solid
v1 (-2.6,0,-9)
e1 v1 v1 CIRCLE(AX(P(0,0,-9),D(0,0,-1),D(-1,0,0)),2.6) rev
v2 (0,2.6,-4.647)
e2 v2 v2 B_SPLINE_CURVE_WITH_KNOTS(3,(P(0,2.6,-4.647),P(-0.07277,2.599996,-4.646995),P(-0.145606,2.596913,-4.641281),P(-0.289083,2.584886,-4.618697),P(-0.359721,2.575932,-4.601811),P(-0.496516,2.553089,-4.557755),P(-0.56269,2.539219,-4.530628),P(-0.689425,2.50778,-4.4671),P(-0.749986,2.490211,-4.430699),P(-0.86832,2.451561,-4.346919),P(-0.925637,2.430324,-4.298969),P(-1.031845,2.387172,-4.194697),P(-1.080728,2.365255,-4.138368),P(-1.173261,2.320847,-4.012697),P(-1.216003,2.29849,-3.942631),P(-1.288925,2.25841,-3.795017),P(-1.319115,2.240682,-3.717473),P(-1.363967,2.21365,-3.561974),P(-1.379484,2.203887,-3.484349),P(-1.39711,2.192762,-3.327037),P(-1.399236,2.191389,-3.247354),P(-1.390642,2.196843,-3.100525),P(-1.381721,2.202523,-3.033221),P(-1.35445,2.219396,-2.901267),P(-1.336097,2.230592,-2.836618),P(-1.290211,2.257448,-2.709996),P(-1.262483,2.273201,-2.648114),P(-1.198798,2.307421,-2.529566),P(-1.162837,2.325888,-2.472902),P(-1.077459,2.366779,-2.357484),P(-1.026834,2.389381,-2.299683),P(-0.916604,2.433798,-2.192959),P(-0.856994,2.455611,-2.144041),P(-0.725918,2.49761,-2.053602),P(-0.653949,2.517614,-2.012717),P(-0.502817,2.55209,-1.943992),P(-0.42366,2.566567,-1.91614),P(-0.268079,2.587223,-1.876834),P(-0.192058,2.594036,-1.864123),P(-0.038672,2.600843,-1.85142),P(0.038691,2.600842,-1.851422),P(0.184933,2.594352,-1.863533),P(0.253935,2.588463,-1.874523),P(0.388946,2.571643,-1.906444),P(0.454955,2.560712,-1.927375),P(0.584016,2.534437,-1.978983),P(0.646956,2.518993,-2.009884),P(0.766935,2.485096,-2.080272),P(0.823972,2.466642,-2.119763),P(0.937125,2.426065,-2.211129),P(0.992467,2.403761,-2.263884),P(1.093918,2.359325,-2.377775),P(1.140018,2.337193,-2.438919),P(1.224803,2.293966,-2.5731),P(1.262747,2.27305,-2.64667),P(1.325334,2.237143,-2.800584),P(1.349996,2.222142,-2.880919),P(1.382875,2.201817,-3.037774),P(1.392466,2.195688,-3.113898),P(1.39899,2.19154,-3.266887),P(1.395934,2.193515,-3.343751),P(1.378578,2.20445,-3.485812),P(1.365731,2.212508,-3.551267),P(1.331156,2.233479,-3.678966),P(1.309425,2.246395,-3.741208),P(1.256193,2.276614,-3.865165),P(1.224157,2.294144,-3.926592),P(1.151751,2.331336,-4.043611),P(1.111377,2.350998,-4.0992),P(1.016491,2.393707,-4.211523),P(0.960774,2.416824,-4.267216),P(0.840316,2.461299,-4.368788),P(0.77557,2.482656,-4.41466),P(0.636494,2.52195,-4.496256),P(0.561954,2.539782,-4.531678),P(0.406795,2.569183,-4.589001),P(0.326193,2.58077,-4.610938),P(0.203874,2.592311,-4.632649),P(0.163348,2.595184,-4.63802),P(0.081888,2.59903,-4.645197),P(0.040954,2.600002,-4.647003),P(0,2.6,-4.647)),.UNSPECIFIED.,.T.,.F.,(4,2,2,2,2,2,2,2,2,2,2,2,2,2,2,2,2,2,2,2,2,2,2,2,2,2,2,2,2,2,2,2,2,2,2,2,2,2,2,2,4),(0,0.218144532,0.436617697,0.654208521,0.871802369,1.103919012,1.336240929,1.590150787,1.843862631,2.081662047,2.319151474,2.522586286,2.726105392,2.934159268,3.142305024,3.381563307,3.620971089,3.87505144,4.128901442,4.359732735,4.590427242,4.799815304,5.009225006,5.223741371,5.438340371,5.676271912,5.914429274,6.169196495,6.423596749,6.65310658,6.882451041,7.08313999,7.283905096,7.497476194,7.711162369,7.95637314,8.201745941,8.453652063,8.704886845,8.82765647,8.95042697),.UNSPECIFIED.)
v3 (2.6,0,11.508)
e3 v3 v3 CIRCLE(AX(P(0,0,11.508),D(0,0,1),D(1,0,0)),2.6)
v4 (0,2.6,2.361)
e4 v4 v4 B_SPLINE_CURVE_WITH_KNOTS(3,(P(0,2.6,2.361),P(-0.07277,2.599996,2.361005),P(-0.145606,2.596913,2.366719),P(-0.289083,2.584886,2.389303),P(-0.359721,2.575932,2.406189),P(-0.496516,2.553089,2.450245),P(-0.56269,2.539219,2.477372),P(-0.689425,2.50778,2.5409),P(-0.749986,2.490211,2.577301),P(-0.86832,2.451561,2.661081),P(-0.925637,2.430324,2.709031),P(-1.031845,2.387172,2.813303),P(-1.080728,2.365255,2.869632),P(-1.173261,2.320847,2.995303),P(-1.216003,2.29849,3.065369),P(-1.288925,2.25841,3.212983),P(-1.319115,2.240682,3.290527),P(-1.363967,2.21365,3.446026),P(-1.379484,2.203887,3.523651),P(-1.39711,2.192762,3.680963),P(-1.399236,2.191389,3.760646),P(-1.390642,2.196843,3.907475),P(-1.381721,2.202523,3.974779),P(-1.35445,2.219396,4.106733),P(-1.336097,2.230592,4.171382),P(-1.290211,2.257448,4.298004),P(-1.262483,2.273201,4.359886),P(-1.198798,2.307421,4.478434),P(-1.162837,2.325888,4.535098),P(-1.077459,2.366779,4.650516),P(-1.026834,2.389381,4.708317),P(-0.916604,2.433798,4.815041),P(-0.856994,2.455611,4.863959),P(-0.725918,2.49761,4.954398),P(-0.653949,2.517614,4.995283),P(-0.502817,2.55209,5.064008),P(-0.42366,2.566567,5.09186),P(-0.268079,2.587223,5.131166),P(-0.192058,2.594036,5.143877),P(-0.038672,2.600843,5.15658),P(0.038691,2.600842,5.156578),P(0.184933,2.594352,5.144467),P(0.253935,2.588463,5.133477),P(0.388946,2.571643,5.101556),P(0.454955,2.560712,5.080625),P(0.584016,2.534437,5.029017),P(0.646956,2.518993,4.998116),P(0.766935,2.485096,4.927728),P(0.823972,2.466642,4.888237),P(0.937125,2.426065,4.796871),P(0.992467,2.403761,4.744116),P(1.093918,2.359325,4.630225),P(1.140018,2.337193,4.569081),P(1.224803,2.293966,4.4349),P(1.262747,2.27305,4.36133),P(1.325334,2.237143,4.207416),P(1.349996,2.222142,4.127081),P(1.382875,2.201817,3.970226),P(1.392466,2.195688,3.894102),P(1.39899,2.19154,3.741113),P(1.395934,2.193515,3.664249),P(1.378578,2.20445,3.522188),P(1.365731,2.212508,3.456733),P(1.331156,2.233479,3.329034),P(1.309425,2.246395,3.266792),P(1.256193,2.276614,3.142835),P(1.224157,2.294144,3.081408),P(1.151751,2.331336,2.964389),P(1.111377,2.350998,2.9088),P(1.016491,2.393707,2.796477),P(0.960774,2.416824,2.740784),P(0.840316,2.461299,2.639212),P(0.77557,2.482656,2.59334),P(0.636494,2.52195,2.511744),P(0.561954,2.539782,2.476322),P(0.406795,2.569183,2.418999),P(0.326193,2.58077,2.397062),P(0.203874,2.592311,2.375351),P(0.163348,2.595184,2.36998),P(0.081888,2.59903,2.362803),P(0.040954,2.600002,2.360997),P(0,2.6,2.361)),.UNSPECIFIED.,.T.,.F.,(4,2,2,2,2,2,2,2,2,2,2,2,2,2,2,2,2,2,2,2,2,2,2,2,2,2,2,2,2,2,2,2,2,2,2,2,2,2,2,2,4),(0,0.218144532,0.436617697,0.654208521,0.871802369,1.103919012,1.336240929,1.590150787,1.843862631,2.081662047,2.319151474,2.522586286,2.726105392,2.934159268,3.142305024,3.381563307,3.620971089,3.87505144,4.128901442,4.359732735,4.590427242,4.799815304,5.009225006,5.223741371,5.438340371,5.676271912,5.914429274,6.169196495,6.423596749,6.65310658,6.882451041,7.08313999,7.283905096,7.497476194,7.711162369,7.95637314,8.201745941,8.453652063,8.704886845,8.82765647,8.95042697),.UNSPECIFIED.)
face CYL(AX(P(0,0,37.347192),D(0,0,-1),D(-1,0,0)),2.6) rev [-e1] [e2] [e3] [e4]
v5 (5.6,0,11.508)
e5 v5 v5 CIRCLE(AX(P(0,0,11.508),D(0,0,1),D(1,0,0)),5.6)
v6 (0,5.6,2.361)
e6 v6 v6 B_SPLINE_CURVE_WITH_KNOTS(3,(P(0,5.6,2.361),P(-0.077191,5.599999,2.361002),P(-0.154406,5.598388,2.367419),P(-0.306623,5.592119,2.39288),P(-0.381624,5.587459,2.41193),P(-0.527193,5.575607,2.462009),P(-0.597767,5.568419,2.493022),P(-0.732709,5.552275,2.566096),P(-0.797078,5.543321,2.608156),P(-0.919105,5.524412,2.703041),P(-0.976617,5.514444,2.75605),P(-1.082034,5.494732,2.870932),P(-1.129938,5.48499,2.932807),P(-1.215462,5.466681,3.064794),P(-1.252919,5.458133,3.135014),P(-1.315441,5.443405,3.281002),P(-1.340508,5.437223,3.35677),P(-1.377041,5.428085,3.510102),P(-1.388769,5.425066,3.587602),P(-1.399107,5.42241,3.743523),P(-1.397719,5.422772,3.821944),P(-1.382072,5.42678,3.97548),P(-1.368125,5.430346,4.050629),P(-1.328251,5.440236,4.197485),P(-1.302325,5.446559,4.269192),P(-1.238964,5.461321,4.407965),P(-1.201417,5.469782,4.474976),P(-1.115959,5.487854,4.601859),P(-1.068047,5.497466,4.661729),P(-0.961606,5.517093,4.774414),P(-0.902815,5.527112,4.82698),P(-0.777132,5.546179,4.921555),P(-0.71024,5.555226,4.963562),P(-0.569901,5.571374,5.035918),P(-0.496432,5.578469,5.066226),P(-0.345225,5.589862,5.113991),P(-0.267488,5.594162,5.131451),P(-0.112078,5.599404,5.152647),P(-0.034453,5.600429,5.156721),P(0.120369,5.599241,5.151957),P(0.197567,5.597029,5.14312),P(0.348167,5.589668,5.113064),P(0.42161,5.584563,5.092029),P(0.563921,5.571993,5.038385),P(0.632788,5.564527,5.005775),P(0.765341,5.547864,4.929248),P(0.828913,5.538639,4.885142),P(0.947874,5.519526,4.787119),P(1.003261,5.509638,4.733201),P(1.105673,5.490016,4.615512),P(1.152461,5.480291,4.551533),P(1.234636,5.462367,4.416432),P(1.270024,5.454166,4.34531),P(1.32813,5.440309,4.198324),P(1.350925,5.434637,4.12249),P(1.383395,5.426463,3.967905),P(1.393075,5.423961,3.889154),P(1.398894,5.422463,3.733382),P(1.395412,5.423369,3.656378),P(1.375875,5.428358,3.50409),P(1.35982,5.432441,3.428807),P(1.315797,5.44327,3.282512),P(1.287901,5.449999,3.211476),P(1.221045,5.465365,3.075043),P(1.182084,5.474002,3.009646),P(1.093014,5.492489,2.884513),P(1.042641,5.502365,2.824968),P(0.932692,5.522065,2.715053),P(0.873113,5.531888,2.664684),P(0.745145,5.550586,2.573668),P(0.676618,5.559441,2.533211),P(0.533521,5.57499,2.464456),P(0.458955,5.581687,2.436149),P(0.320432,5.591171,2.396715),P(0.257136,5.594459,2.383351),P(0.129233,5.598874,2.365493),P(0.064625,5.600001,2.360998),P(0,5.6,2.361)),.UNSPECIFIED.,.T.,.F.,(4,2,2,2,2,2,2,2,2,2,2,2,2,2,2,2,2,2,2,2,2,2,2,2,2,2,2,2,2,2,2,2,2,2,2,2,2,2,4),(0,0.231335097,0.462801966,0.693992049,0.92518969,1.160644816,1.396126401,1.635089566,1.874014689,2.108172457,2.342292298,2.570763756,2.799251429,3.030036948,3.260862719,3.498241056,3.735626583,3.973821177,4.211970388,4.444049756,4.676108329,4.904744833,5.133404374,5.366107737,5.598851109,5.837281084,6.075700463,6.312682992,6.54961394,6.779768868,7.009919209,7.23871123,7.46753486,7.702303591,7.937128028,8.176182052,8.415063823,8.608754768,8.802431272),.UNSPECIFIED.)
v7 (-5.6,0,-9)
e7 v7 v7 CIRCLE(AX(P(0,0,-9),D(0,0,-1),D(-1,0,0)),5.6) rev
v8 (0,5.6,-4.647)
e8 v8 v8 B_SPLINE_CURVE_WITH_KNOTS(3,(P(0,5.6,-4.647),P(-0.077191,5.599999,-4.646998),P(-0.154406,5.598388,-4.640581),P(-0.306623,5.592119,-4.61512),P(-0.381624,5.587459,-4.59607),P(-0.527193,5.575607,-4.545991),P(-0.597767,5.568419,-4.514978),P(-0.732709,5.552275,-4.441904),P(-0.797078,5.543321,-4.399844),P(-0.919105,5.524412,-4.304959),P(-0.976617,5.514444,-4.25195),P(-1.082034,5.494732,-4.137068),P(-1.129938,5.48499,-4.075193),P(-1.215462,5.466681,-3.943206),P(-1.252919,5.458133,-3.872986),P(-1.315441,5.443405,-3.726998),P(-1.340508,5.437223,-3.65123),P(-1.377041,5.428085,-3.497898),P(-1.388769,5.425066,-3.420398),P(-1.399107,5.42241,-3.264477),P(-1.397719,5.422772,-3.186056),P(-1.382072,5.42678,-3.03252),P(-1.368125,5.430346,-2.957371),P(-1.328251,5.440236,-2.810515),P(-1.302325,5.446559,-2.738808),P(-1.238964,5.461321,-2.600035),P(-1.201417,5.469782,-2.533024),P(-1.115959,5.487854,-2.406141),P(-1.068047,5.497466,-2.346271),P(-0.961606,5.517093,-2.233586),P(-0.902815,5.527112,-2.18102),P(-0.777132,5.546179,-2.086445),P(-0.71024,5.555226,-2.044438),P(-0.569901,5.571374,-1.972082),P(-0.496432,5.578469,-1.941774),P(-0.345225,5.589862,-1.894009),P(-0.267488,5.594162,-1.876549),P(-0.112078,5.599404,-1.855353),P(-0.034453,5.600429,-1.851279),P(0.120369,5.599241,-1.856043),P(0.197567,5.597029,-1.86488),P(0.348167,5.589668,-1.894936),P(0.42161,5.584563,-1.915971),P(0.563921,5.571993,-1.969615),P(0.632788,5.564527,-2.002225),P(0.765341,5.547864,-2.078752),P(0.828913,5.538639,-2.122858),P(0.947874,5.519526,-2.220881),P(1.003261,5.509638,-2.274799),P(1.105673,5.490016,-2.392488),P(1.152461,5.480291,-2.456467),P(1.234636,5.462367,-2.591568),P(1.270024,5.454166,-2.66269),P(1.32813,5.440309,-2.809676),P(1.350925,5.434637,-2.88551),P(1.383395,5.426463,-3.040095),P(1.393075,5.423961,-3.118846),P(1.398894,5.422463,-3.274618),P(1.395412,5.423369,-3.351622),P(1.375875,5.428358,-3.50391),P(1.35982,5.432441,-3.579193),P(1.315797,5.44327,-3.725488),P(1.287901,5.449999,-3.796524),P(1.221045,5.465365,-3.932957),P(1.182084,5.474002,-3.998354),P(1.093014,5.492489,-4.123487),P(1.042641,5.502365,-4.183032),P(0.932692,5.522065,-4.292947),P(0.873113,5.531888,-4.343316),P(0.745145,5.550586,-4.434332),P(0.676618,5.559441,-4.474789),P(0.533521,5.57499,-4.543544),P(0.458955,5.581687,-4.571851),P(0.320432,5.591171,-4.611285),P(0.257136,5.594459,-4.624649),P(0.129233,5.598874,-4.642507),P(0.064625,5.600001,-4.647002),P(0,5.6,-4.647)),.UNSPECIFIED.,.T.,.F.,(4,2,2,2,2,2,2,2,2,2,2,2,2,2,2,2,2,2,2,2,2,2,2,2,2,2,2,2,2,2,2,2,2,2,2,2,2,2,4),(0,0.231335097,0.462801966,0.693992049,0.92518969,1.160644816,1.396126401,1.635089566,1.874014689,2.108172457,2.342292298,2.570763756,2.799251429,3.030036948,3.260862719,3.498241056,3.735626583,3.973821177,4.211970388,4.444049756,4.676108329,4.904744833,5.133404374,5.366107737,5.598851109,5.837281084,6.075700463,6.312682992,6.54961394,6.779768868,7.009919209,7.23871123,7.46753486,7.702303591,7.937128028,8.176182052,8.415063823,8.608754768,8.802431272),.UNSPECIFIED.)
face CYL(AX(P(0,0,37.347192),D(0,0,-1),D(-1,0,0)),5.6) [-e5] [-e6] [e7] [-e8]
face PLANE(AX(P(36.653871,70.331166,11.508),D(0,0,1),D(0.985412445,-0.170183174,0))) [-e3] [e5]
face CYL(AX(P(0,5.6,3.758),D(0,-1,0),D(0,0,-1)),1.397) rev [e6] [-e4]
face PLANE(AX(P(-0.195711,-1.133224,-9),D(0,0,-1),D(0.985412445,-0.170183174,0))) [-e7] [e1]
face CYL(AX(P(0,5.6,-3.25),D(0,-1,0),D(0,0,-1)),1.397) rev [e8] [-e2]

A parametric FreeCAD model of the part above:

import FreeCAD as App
import Part
import Sketcher
from FreeCAD import Vector
Q = App.Units.Quantity

doc = App.newDocument("Part")
body = doc.addObject("PartDesign::Body", "Body")

sketch1 = body.newObject("Sketcher::SketchObject", "Sketch")
sketch1.AttachmentSupport = (doc.getObject("XY_Plane"), [""])
sketch1.MapMode = "FlatFace"
sketch1.addGeometry([
    Part.Circle(Vector(0, 0, 0), Vector(0, 0, 1), 5.6),
    Part.Circle(Vector(0, 0, 0), Vector(0, 0, 1), 2.6),
], False)
sketch1.addConstraint([
    Sketcher.Constraint("Coincident", 0, 3, -1, 1),
    Sketcher.Constraint("Coincident", 1, 3, -1, 1),
    Sketcher.Constraint("Diameter", 0, Q("11.2 mm")),
    Sketcher.Constraint("Diameter", 1, Q("5.2 mm")),
])
pad1 = body.newObject("PartDesign::Pad", "Pad")
pad1.Profile = sketch1
pad1.Type = "TwoLengths"
pad1.Length = 11.508
pad1.Length2 = 9

sketch2 = body.newObject("Sketcher::SketchObject", "Sketch001")
sketch2.AttachmentSupport = (doc.getObject("XZ_Plane"), [""])
sketch2.MapMode = "FlatFace"
sketch2.addGeometry([
    Part.Circle(Vector(0, 3.8, 0), Vector(0, 0, 1), 1.4),
    Part.Circle(Vector(0, -3.2, 0), Vector(0, 0, 1), 1.4),
], False)
sketch2.addConstraint([
    Sketcher.Constraint("Equal", 0, 1),
    Sketcher.Constraint("PointOnObject", 0, 3, -2),
    Sketcher.Constraint("PointOnObject", 1, 3, -2),
    Sketcher.Constraint("Diameter", 0, Q("2.794 mm")),
    Sketcher.Constraint("DistanceY", 1, 3, -1, 1, Q("3.25 mm")),
    Sketcher.Constraint("DistanceY", -1, 1, 0, 3, Q("3.758 mm")),
])
pocket1 = body.newObject("PartDesign::Pocket", "Pocket")
pocket1.Profile = sketch2
pocket1.Type = "ThroughAll"

doc.recompute()
